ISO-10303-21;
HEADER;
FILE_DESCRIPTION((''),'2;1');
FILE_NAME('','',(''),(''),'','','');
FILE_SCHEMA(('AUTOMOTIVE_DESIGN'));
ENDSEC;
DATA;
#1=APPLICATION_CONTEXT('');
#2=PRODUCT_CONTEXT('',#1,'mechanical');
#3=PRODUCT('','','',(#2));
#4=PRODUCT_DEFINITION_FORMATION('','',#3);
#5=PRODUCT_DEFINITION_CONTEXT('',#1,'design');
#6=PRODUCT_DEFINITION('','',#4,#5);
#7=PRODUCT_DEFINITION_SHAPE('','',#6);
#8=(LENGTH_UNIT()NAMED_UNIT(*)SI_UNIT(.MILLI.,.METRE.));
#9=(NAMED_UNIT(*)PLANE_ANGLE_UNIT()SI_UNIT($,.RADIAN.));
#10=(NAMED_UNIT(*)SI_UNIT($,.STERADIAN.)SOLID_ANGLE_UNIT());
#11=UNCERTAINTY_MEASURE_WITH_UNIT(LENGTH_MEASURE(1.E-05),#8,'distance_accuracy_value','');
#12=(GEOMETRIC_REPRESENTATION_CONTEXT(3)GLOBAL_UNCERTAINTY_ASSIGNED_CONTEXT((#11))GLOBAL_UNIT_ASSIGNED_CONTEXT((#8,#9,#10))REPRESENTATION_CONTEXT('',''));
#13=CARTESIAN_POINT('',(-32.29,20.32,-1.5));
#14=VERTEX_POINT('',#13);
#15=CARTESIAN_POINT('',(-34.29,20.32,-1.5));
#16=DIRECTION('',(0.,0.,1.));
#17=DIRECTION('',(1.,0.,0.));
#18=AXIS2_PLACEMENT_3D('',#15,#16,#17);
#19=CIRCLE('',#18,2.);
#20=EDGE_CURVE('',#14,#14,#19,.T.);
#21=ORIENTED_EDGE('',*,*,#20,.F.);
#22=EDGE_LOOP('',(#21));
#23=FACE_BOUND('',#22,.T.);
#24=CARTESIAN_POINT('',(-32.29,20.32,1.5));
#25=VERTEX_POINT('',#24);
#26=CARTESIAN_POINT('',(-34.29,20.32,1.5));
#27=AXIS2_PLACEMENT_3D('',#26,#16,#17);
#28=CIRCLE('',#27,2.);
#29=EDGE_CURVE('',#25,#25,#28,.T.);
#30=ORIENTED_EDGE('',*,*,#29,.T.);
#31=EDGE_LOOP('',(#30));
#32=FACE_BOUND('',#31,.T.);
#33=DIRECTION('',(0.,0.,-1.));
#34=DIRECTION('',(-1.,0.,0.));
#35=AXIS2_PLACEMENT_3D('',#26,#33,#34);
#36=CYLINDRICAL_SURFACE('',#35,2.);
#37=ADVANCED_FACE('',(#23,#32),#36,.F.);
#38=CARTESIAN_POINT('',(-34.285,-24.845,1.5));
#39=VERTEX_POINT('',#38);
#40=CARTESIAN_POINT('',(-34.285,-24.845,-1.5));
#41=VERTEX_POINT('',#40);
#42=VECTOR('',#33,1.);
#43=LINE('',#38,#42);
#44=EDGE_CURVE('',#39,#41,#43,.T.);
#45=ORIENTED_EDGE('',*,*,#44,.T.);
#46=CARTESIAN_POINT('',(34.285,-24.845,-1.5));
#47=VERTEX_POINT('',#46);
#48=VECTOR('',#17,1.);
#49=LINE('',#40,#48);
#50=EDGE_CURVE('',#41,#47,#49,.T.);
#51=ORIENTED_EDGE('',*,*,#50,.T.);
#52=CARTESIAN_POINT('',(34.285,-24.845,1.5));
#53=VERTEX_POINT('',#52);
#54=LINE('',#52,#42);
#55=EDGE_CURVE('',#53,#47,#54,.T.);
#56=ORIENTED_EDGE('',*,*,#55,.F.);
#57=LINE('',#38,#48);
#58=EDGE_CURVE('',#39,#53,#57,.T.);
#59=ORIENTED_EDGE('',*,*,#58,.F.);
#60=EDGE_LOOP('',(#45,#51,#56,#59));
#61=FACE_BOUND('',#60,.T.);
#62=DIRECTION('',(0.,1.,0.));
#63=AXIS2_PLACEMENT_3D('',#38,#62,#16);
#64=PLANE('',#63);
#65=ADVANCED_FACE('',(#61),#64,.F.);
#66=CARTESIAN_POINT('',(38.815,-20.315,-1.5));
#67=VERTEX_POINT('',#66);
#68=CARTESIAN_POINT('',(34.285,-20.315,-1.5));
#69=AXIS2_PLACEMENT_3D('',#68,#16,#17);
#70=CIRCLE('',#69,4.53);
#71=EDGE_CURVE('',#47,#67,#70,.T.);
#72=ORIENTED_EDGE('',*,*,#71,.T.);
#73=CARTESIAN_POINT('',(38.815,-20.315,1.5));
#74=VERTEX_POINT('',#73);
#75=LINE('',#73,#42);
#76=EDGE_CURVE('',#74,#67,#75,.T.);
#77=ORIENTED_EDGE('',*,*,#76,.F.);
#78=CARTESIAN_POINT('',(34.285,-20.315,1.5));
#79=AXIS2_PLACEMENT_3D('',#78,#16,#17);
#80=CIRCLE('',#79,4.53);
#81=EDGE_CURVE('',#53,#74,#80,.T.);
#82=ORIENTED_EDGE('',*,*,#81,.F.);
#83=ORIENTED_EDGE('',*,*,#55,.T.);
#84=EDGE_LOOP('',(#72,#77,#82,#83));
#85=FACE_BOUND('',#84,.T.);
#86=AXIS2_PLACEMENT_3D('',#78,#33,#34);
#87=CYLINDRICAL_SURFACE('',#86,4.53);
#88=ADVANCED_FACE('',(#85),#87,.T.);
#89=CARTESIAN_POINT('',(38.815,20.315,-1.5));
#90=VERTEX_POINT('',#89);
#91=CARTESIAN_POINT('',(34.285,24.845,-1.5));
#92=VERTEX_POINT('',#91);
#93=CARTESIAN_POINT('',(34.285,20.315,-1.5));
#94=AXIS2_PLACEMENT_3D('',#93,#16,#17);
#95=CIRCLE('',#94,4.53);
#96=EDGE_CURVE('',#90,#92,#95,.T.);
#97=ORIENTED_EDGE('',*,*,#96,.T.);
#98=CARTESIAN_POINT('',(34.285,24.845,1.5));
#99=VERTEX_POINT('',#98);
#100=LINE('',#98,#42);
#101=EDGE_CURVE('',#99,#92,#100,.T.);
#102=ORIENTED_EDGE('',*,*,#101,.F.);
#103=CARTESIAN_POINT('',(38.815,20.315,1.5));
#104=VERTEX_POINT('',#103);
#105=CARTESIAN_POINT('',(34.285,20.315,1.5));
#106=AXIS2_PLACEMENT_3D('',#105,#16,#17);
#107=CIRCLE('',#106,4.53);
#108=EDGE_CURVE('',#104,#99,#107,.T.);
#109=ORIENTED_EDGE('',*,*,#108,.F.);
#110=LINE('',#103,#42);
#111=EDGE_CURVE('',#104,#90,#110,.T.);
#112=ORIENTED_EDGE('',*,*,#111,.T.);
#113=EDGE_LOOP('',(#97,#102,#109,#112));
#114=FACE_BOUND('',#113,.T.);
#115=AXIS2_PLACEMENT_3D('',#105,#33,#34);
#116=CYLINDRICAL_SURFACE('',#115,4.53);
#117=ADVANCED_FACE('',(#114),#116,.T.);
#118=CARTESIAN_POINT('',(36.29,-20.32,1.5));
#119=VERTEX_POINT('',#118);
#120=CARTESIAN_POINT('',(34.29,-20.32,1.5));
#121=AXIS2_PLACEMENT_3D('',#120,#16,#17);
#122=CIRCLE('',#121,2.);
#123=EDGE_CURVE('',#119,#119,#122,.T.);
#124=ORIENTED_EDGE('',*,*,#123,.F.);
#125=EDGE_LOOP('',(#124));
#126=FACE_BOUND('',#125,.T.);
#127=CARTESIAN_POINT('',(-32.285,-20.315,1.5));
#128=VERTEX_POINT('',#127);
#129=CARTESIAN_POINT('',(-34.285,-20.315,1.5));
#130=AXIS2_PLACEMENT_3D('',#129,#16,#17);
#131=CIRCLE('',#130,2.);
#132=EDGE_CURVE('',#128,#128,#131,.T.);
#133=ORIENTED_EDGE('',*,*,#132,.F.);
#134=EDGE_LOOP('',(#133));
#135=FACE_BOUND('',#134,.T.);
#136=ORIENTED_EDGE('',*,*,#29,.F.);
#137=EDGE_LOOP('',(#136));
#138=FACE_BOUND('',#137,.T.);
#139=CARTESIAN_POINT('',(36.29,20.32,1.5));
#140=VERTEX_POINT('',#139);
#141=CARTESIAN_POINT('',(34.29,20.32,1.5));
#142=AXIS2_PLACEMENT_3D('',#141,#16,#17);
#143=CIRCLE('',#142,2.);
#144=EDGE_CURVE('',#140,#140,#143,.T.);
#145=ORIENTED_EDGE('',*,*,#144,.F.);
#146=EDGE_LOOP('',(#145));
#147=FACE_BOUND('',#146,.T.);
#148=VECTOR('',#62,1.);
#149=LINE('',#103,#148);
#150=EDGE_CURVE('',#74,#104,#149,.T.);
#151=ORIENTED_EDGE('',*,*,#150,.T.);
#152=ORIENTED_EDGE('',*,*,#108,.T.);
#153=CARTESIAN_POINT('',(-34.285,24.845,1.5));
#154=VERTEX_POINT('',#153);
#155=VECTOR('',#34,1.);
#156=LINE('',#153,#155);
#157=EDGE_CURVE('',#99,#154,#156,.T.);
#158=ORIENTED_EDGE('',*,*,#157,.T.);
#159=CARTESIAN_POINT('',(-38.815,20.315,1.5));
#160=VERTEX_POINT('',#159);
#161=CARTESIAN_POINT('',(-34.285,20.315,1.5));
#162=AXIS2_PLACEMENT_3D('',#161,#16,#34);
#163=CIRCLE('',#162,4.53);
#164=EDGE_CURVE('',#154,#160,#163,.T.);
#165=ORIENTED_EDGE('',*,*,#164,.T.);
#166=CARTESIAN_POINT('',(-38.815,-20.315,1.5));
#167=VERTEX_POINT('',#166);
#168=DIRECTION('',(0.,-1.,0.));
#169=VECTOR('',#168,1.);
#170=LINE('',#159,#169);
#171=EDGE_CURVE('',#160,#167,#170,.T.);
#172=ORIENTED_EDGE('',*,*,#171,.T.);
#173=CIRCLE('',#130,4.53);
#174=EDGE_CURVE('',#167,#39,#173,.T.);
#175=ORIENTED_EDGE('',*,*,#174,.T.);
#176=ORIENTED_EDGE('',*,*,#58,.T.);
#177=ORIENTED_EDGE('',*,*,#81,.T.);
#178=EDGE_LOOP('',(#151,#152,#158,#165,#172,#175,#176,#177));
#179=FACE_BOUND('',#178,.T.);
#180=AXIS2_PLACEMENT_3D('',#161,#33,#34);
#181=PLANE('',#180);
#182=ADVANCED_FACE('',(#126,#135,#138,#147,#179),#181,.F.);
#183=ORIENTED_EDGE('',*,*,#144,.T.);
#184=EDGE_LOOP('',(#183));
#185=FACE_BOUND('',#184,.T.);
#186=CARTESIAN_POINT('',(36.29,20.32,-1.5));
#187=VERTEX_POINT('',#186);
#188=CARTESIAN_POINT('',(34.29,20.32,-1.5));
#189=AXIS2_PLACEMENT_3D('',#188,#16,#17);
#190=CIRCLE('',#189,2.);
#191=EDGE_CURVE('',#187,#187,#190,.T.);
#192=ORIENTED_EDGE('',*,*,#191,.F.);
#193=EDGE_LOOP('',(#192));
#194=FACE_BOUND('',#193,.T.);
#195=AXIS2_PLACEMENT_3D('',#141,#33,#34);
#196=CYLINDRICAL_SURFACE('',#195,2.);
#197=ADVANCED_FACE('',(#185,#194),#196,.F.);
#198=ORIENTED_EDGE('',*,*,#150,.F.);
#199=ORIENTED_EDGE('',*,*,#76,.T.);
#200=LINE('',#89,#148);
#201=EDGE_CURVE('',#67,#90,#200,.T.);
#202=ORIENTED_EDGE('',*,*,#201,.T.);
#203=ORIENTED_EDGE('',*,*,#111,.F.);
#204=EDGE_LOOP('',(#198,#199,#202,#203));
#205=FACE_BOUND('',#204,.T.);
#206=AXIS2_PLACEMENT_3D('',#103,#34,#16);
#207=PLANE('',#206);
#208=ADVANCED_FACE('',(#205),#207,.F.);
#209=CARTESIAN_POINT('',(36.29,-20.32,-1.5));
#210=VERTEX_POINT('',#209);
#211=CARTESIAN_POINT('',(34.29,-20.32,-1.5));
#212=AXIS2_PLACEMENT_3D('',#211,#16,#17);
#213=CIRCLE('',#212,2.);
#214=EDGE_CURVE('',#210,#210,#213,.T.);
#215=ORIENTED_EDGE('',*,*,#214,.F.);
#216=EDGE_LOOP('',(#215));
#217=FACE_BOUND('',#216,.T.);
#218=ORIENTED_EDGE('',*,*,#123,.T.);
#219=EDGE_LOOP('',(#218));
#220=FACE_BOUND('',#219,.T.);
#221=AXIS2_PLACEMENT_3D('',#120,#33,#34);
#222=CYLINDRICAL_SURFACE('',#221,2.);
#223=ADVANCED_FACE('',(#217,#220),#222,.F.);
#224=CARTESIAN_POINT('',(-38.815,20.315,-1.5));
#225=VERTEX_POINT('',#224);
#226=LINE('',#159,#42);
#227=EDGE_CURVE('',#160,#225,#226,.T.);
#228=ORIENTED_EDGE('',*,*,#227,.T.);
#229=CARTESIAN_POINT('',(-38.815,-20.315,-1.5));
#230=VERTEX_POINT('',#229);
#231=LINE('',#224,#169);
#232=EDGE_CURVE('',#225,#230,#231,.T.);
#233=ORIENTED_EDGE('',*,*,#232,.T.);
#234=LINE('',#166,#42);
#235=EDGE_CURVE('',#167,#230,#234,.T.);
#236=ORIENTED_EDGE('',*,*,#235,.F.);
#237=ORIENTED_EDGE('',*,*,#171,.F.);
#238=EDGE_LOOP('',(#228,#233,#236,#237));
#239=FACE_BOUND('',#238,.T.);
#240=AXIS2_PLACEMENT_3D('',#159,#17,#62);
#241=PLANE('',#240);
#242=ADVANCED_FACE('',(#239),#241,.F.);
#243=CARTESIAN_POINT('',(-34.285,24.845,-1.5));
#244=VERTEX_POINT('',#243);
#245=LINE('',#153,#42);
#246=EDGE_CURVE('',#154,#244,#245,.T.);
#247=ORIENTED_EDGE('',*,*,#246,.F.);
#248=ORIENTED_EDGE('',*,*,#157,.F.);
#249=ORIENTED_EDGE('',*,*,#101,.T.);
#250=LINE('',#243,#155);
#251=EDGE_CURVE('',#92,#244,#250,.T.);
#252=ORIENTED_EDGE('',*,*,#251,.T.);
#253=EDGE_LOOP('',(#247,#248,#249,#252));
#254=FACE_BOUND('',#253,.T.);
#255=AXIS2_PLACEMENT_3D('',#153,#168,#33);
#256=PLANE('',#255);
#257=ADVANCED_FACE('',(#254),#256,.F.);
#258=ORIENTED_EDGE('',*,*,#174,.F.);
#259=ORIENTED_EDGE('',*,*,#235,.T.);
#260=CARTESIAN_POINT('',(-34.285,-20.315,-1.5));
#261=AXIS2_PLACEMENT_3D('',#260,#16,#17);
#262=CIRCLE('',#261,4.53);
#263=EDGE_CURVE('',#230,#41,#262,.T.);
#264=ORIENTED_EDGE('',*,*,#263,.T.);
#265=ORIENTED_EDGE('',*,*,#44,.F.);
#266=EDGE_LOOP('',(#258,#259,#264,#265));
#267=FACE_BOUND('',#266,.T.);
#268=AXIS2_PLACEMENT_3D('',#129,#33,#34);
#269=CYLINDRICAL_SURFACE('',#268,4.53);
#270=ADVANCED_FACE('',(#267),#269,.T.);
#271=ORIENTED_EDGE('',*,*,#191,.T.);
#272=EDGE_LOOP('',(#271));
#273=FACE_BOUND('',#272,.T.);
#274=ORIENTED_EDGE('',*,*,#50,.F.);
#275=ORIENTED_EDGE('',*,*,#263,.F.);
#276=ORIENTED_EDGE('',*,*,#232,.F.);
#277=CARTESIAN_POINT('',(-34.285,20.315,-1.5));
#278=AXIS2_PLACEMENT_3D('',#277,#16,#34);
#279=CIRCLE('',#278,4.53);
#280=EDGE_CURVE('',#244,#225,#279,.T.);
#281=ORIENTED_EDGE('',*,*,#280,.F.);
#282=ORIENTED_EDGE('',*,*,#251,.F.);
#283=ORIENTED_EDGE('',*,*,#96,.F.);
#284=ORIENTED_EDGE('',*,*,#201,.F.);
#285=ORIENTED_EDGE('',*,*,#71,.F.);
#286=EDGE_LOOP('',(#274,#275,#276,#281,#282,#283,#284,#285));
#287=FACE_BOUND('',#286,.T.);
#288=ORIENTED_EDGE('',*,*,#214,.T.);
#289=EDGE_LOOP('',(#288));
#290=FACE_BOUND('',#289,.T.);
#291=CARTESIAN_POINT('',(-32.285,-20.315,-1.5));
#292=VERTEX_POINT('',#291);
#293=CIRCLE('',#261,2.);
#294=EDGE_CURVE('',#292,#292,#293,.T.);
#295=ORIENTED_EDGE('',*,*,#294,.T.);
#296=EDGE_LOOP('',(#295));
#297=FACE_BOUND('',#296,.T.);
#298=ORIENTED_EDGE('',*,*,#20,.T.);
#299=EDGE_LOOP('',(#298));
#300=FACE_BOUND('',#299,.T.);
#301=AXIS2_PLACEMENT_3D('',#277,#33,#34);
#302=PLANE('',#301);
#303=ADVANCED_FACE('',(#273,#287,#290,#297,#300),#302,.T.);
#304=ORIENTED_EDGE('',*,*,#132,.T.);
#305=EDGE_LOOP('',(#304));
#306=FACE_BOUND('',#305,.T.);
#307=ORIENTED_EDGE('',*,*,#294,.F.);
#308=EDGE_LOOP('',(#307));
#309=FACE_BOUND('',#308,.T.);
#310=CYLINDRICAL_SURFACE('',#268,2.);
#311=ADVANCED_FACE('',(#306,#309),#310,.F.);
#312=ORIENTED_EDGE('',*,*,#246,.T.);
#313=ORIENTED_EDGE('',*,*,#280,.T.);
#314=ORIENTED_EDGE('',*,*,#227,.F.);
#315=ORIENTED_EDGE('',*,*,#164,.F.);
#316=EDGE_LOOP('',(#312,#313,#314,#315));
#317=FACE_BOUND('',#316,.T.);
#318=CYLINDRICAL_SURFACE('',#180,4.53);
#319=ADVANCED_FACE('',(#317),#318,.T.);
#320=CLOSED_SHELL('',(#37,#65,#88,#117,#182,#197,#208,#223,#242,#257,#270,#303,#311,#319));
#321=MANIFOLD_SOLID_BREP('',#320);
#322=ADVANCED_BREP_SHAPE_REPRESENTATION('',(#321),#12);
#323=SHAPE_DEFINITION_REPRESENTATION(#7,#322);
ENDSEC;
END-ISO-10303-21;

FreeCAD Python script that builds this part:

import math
import FreeCAD as App
import Part
import Sketcher
from FreeCAD import Vector
Q = App.Units.Quantity

doc = App.newDocument("Part")
body = doc.addObject("PartDesign::Body", "Body")

# Sketch on XY plane
sketch1 = body.newObject("Sketcher::SketchObject", "Sketch")
sketch1.AttachmentSupport = (doc.getObject("XY_Plane"), [""])
sketch1.MapMode = "FlatFace"
sketch1.addGeometry([
    Part.LineSegment(Vector(34.3, 24.8, 0), Vector(-34.3, 24.8, 0)),  # 0
    Part.ArcOfCircle(Part.Circle(Vector(-34.3, 20.3, 0), Vector(0, 0, 1), 4.5), math.radians(90), math.radians(180)),  # 1
    Part.LineSegment(Vector(-38.8, 20.3, 0), Vector(-38.8, -20.3, 0)),  # 2
    Part.ArcOfCircle(Part.Circle(Vector(-34.3, -20.3, 0), Vector(0, 0, 1), 4.5), math.radians(180), math.radians(270)),  # 3
    Part.LineSegment(Vector(-34.3, -24.8, 0), Vector(34.3, -24.8, 0)),  # 4
    Part.ArcOfCircle(Part.Circle(Vector(34.3, -20.3, 0), Vector(0, 0, 1), 4.5), math.radians(-90), math.radians(0)),  # 5
    Part.LineSegment(Vector(38.8, -20.3, 0), Vector(38.8, 20.3, 0)),  # 6
    Part.ArcOfCircle(Part.Circle(Vector(34.3, 20.3, 0), Vector(0, 0, 1), 4.5), math.radians(0), math.radians(90)),  # 7
    Part.Circle(Vector(34.3, -20.3, 0), Vector(0, 0, 1), 2),  # 8
    Part.Circle(Vector(-34.3, -20.3, 0), Vector(0, 0, 1), 2),  # 9
    Part.Circle(Vector(34.3, 20.3, 0), Vector(0, 0, 1), 2),  # 10
    Part.Circle(Vector(-34.3, 20.3, 0), Vector(0, 0, 1), 2),  # 11
], False)
sketch1.addConstraint([
    Sketcher.Constraint("Tangent", 0, 2, 1, 1),
    Sketcher.Constraint("Tangent", 1, 2, 2, 1),
    Sketcher.Constraint("Tangent", 2, 2, 3, 1),
    Sketcher.Constraint("Tangent", 3, 2, 4, 1),
    Sketcher.Constraint("Tangent", 4, 2, 5, 1),
    Sketcher.Constraint("Tangent", 5, 2, 6, 1),
    Sketcher.Constraint("Tangent", 6, 2, 7, 1),
    Sketcher.Constraint("Tangent", 7, 2, 0, 1),
    Sketcher.Constraint("Horizontal", 0),
    Sketcher.Constraint("Vertical", 2),
    Sketcher.Constraint("Horizontal", 4),
    Sketcher.Constraint("Vertical", 6),
    Sketcher.Constraint("Coincident", 9, 3, 3, 3),
    Sketcher.Constraint("Equal", 1, 3),
    Sketcher.Constraint("Equal", 3, 5),
    Sketcher.Constraint("Equal", 5, 7),
    Sketcher.Constraint("Equal", 8, 9),
    Sketcher.Constraint("Equal", 9, 10),
    Sketcher.Constraint("Equal", 10, 11),
    Sketcher.Constraint("Symmetric", 1, 3, 5, 3, -1, 1),
    Sketcher.Constraint("Symmetric", 8, 3, 11, 3, -1, 1),
    Sketcher.Constraint("Symmetric", 10, 3, 11, 3, -2),
    Sketcher.Constraint("Diameter", 8, Q("4 mm")),
    Sketcher.Constraint("Radius", 1, Q("4.53 mm")),
    Sketcher.Constraint("DistanceX", 0, 2, 0, 1, Q("68.57 mm")),
    Sketcher.Constraint("DistanceY", 2, 2, 2, 1, Q("40.63 mm")),
    Sketcher.Constraint("DistanceX", -1, 1, 8, 3, Q("34.29 mm")),
    Sketcher.Constraint("DistanceY", 8, 3, -1, 1, Q("20.32 mm")),
])
pad1 = body.newObject("PartDesign::Pad", "Pad")
pad1.Profile = sketch1
pad1.Length = 3
pad1.Midplane = True

doc.recompute()
